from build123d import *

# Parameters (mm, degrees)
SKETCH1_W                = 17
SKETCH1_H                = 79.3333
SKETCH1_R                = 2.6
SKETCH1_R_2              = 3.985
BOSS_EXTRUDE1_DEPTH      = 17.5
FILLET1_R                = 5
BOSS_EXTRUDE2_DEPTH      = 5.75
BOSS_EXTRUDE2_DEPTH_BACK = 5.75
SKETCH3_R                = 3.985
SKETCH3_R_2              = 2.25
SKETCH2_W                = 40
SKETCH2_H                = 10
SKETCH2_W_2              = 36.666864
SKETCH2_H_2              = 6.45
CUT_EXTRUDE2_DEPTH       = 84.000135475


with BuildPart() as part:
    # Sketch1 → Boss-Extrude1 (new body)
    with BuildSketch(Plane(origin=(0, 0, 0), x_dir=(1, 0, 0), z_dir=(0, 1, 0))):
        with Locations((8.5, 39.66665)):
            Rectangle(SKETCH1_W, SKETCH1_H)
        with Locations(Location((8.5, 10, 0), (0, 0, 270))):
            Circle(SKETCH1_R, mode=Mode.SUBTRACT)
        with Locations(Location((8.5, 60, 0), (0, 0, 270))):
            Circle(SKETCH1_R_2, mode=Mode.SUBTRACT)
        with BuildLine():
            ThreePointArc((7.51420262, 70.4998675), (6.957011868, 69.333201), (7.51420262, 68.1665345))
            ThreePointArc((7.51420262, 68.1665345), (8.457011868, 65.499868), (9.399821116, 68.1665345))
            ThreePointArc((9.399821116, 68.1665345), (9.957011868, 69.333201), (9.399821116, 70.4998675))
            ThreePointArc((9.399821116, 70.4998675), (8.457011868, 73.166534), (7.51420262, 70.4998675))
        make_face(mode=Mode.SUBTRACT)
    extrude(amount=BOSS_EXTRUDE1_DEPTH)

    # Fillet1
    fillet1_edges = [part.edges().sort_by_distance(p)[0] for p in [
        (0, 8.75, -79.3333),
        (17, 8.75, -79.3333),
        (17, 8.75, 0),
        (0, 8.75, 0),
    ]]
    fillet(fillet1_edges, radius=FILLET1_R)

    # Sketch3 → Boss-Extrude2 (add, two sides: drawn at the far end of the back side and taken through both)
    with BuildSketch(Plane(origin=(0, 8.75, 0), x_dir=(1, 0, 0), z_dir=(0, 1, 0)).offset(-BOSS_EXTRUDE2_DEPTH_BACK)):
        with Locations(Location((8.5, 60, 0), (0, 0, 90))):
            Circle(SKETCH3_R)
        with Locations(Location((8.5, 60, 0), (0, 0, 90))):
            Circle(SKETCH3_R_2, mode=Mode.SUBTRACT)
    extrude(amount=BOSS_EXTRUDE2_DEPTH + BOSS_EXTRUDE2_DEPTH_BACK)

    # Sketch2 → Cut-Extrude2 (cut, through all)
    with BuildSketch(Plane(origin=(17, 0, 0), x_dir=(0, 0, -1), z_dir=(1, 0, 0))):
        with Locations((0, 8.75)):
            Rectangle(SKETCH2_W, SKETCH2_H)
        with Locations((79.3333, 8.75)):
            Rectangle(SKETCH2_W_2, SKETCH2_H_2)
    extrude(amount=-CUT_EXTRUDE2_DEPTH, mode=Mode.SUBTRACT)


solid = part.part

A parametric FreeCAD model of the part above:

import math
import FreeCAD as App
import Part
import Sketcher


def edges_at(feature, points):
    """Names of the edges that pass closest to the given points."""
    edges = feature.Shape.Edges
    near = lambda p: min(range(len(edges)), key=lambda i: edges[i].distToShape(Part.Vertex(*p))[0])
    return sorted({f"Edge{near(p) + 1}" for p in points})


def add_polygon(sketch, points):
    """Adds a closed chain of lines whose ends are joined by coincident constraints."""
    first, n = sketch.GeometryCount, len(points)
    for a, b in zip(points, points[1:] + points[:1]):
        sketch.addGeometry(Part.LineSegment(App.Vector(*a, 0), App.Vector(*b, 0)), False)
    for i in range(n):
        sketch.addConstraint(Sketcher.Constraint("Coincident", first + i, 2, first + (i + 1) % n, 1))

doc = App.newDocument("Part")
body = doc.addObject("PartDesign::Body", "Body")

sketch1 = doc.addObject("Sketcher::SketchObject", "Sketch")
body.addObject(sketch1)
sketch1.AttachmentSupport = (doc.XZ_Plane, [""])
sketch1.MapMode = "FlatFace"
add_polygon(sketch1, [(0, -79.3), (0, 0), (17, 0), (17, -79.3)])
sketch1.addGeometry(Part.Circle(App.Vector(8.5, -10, 0), App.Vector(0, 0, 1), 2.6), False)
sketch1.addGeometry(Part.Circle(App.Vector(8.5, -60, 0), App.Vector(0, 0, 1), 4), False)
sketch1.addGeometry(Part.ArcOfCircle(Part.Circle(App.Vector(8.5, -69.3, 0), App.Vector(0, 0, 1), 1.5), math.radians(129), math.radians(231)), False)
sketch1.addGeometry(Part.ArcOfCircle(Part.Circle(App.Vector(8.5, -71.7, 0), App.Vector(0, 0, 1), 1.5), math.radians(129), math.radians(411)), False)
sketch1.addGeometry(Part.ArcOfCircle(Part.Circle(App.Vector(8.5, -69.3, 0), App.Vector(0, 0, 1), 1.5), math.radians(-51), math.radians(51)), False)
sketch1.addGeometry(Part.ArcOfCircle(Part.Circle(App.Vector(8.5, -67, 0), App.Vector(0, 0, 1), 1.5), math.radians(-51), math.radians(231)), False)
sketch1.addConstraint([
    Sketcher.Constraint("Coincident", 6, 2, 7, 1),
    Sketcher.Constraint("Coincident", 7, 2, 8, 1),
    Sketcher.Constraint("Coincident", 8, 2, 9, 1),
    Sketcher.Constraint("Coincident", 9, 2, 6, 1),
    Sketcher.Constraint("Vertical", 0),
    Sketcher.Constraint("Horizontal", 1),
    Sketcher.Constraint("Vertical", 2),
    Sketcher.Constraint("Horizontal", 3),
    Sketcher.Constraint("Coincident", 0, 2, -1, 1),
    Sketcher.Constraint("Coincident", 8, 3, 6, 3),
    Sketcher.Constraint("Equal", 6, 7),
    Sketcher.Constraint("Equal", 7, 8),
    Sketcher.Constraint("Equal", 8, 9),
    Sketcher.Constraint("Horizontal", 6, 2, 7, 2),
    Sketcher.Constraint("Horizontal", 8, 2, 9, 2),
    Sketcher.Constraint("Vertical", 4, 3, 5, 3),
    Sketcher.Constraint("Vertical", 7, 2, 8, 2),
    Sketcher.Constraint("Diameter", 4, 5.2),
    Sketcher.Constraint("Radius", 6, 1.5),
    Sketcher.Constraint("Diameter", 5, 7.97),
    Sketcher.Constraint("DistanceX", 1, 1, 1, 2, 17.0),
    Sketcher.Constraint("DistanceY", 4, 3, -1, 1, 10.0),
    Sketcher.Constraint("DistanceY", 5, 3, -1, 1, 60.0),
    Sketcher.Constraint("DistanceX", -1, 1, 4, 3, 8.5),
    Sketcher.Constraint("DistanceY", 6, 2, 9, 3, 3.499999),
    Sketcher.Constraint("DistanceY", 0, 1, 0, 2, 79.3333),
    Sketcher.Constraint("DistanceY", 6, 3, -1, 1, 69.333201),
    Sketcher.Constraint("DistanceX", -1, 1, 6, 3, 8.457012),
])
pad1 = doc.addObject("PartDesign::Pad", "Pad")
body.addObject(pad1)
pad1.Profile = sketch1
pad1.Length = 17.5
pad1.Reversed = True
doc.recompute()

fillet = doc.addObject("PartDesign::Fillet", "Fillet")
body.addObject(fillet)
fillet.Base = (pad1, edges_at(pad1, [
    (0, 8.75, -79.333),
    (17, 8.75, -79.333),
    (17, 8.75, 0),
    (0, 8.75, 0),
]))
fillet.Radius = 5

sketch2 = doc.addObject("Sketcher::SketchObject", "Sketch001")
body.addObject(sketch2)
sketch2.AttachmentSupport = (doc.XZ_Plane, [""])
sketch2.MapMode = "FlatFace"
sketch2.AttachmentOffset = App.Placement(App.Vector(0, 0, -8.75), App.Rotation())
sketch2.addGeometry([
    Part.Circle(App.Vector(8.5, -60, 0), App.Vector(0, 0, 1), 4),
    Part.Circle(App.Vector(8.5, -60, 0), App.Vector(0, 0, 1), 2.2),
], False)
sketch2.addConstraint([
    Sketcher.Constraint("Coincident", 1, 3, 0, 3),
    Sketcher.Constraint("Diameter", 1, 4.5),
    Sketcher.Constraint("Diameter", 0, 7.97),
    Sketcher.Constraint("DistanceY", 0, 3, -1, 1, 60.0),
    Sketcher.Constraint("DistanceX", -1, 1, 0, 3, 8.5),
])
pad2 = doc.addObject("PartDesign::Pad", "Pad001")
body.addObject(pad2)
pad2.Profile = sketch2
pad2.Type = "TwoLengths"
pad2.Length = 5.75
pad2.Length2 = 5.75
pad2.Reversed = True

sketch3 = doc.addObject("Sketcher::SketchObject", "Sketch002")
body.addObject(sketch3)
sketch3.AttachmentSupport = (doc.YZ_Plane, [""])
sketch3.MapMode = "FlatFace"
sketch3.AttachmentOffset = App.Placement(App.Vector(0, 0, 17), App.Rotation())
add_polygon(sketch3, [(14, 20), (4, 20), (4, -20), (14, -20)])
add_polygon(sketch3, [(12, -61), (6, -61), (6, -98), (12, -98)])
sketch3.addConstraint([
    Sketcher.Constraint("Horizontal", 0),
    Sketcher.Constraint("Vertical", 1),
    Sketcher.Constraint("Horizontal", 2),
    Sketcher.Constraint("Vertical", 3),
    Sketcher.Constraint("Horizontal", 4),
    Sketcher.Constraint("Vertical", 5),
    Sketcher.Constraint("Horizontal", 6),
    Sketcher.Constraint("Vertical", 7),
    Sketcher.Constraint("DistanceX", 0, 2, 0, 1, 10.0),
    Sketcher.Constraint("DistanceY", 1, 2, 1, 1, 40.0),
    Sketcher.Constraint("DistanceY", -1, 1, 0, 2, 20.0),
    Sketcher.Constraint("DistanceX", 4, 2, 4, 1, 6.45),
    Sketcher.Constraint("DistanceX", -1, 1, 0, 2, 3.75),
    Sketcher.Constraint("DistanceX", -1, 1, 4, 2, 5.525),
    Sketcher.Constraint("DistanceY", 5, 2, 5, 1, 36.666864),
    Sketcher.Constraint("DistanceY", 5, 2, -1, 1, 97.666732),
])
pocket1 = doc.addObject("PartDesign::Pocket", "Pocket")
body.addObject(pocket1)
pocket1.Profile = sketch3
pocket1.Type = "ThroughAll"

doc.recompute()
